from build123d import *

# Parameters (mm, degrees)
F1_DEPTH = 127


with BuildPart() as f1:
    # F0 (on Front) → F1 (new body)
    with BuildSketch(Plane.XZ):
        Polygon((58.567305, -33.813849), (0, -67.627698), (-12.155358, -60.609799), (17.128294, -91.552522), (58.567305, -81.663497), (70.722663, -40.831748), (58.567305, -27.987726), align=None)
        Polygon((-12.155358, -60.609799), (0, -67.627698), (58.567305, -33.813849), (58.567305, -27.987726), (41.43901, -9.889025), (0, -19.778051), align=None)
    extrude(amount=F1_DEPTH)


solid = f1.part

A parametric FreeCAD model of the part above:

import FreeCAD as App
import Part
import Sketcher
Q = App.Units.Quantity


def add_polygon(sketch, points):
    """Adds a closed chain of lines whose ends are joined by coincident constraints."""
    first, n = sketch.GeometryCount, len(points)
    for a, b in zip(points, points[1:] + points[:1]):
        sketch.addGeometry(Part.LineSegment(App.Vector(*a, 0), App.Vector(*b, 0)), False)
    for i in range(n):
        sketch.addConstraint(Sketcher.Constraint("Coincident", first + i, 2, first + (i + 1) % n, 1))

doc = App.newDocument("Part")
body = doc.addObject("PartDesign::Body", "Body")

sketch1 = doc.addObject("Sketcher::SketchObject", "Sketch")
body.addObject(sketch1)
sketch1.AttachmentSupport = (doc.XZ_Plane, [""])
sketch1.MapMode = "FlatFace"
add_polygon(sketch1, [(-12, -61), (17, -92), (59, -82), (71, -41), (59, -28), (41, -10), (0, -20)])
sketch1.addConstraint([
    Sketcher.Constraint("PointOnObject", 5, 2, -2),
    Sketcher.Constraint("Parallel", 0, 3),
    Sketcher.Constraint("Parallel", 3, 4),
    Sketcher.Constraint("Parallel", 1, 5),
    Sketcher.Constraint("Parallel", 2, 6),
    Sketcher.Constraint("Vertical", 1, 2, 3, 2),
    Sketcher.Constraint("Equal", 0, 1),
    Sketcher.Constraint("Equal", 1, 2),
    Sketcher.Constraint("Equal", 2, 5),
    Sketcher.Constraint("DistanceY", 6, 2, -1, 1, 60.609799),
    Sketcher.Constraint("DistanceY", 3, 2, 4, 2, 18.098701),
    Sketcher.Constraint("DistanceY", 1, 2, 6, 2, 21.053698),
    Sketcher.Constraint("DistanceY", 0, 2, -1, 1, 91.552522),
    Sketcher.Constraint("DistanceX", -1, 1, 4, 2, 41.43901),
])
pad1 = doc.addObject("PartDesign::Pad", "Pad")
body.addObject(pad1)
pad1.Profile = sketch1
pad1.Length = Q("5 in")

doc.recompute()
